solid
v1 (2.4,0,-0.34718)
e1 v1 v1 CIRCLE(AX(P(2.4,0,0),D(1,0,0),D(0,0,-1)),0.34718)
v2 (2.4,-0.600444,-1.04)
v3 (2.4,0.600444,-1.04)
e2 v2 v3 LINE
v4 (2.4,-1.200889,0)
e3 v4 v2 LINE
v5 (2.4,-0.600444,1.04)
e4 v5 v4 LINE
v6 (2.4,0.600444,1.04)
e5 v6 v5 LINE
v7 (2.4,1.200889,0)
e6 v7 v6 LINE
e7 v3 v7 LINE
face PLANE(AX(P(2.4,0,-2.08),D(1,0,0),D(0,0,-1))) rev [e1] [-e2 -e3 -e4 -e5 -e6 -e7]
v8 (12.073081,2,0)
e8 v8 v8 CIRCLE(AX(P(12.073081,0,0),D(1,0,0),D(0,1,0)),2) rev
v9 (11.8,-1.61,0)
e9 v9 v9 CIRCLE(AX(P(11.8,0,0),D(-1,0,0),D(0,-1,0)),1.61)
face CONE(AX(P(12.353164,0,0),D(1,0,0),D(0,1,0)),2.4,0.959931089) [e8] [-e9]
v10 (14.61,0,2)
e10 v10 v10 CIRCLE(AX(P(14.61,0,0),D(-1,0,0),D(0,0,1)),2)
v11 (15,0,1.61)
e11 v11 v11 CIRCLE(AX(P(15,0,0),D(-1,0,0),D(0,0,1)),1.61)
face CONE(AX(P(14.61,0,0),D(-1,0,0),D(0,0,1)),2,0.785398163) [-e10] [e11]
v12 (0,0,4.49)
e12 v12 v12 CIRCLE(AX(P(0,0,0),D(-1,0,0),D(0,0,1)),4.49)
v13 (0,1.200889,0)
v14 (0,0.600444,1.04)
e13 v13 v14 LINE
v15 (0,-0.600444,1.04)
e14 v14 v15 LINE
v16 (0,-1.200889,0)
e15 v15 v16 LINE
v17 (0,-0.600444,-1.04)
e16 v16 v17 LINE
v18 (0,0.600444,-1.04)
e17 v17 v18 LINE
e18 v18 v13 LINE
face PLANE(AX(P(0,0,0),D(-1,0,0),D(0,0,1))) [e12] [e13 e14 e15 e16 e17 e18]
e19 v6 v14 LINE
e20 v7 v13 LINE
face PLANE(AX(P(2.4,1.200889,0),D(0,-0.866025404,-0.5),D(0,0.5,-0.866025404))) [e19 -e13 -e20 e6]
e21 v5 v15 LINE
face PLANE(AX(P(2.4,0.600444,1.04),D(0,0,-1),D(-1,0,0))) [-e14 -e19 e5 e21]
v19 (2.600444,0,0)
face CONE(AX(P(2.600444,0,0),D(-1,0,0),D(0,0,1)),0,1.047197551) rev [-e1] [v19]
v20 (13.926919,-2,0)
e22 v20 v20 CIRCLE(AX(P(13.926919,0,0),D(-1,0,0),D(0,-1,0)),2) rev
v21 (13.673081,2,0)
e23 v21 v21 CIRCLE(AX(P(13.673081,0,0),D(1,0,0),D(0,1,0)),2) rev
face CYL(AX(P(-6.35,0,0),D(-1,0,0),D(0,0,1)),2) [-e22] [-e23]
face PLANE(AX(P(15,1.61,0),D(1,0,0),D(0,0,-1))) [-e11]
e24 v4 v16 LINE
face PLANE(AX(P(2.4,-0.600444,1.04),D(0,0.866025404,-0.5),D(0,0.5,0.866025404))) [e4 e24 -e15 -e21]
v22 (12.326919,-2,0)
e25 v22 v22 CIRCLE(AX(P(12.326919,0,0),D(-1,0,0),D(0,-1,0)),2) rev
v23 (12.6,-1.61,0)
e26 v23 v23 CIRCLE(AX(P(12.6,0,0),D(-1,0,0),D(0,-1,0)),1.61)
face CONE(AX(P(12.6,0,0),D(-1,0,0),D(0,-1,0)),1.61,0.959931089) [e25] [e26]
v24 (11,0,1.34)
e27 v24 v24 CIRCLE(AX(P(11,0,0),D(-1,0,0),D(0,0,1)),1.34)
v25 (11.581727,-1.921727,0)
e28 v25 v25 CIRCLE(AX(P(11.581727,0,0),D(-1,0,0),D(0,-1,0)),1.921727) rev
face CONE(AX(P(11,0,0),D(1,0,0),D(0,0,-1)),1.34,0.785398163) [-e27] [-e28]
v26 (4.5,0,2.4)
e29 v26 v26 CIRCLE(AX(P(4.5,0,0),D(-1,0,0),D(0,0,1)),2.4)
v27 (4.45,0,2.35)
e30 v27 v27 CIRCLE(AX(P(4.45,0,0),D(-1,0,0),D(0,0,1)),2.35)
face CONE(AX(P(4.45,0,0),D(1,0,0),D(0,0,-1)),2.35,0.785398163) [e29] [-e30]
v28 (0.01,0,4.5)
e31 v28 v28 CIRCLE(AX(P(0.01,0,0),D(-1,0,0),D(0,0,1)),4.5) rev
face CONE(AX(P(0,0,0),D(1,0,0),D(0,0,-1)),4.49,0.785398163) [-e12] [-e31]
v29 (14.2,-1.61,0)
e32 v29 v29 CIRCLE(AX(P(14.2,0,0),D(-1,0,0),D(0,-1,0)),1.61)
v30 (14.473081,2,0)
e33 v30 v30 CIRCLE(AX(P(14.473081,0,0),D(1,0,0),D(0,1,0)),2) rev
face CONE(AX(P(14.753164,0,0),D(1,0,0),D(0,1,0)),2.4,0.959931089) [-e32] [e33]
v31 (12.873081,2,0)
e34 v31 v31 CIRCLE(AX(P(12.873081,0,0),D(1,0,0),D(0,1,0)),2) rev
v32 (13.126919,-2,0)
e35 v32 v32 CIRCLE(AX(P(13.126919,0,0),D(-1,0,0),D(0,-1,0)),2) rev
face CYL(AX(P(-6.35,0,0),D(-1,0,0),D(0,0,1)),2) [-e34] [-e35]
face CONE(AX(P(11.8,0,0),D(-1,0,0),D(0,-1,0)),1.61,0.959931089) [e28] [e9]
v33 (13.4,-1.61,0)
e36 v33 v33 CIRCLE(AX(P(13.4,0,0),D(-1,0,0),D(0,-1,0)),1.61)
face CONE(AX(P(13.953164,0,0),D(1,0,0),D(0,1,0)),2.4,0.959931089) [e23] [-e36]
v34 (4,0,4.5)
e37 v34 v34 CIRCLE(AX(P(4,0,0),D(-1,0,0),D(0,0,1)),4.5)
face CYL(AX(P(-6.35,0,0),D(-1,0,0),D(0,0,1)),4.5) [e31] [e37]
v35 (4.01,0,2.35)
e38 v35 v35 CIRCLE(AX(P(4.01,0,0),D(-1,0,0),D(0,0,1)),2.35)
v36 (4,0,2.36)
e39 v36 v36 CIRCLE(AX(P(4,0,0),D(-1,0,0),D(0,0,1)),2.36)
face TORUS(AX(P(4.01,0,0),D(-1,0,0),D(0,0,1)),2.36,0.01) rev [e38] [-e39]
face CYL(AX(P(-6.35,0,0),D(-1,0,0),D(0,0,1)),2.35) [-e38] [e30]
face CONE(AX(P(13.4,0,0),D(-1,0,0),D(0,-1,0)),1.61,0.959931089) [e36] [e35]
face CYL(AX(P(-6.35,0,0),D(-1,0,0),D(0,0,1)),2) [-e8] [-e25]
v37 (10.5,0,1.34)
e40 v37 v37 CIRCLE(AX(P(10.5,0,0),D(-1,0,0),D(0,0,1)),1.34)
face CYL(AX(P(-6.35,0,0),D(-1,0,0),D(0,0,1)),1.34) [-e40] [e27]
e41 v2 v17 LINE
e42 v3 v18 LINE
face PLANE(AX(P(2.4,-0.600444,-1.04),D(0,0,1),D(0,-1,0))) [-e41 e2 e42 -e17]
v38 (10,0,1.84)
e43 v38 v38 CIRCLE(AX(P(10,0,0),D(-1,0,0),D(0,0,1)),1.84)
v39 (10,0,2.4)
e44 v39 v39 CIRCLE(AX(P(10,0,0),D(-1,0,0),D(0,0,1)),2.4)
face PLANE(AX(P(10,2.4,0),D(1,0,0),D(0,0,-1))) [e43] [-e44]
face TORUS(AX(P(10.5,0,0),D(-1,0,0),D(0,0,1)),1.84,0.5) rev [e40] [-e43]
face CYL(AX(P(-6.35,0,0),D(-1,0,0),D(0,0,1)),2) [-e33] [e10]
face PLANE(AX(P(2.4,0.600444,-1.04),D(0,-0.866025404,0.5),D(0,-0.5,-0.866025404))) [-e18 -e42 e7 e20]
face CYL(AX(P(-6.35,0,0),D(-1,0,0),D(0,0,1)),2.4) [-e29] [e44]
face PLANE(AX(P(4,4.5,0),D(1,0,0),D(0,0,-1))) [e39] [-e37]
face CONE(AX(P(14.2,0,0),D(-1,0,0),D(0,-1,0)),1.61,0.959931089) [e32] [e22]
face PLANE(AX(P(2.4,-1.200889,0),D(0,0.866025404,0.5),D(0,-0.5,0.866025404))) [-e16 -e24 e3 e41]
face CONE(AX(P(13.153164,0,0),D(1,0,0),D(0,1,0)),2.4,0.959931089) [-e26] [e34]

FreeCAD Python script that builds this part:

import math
import FreeCAD as App
import Part
import Sketcher
from FreeCAD import Vector
Q = App.Units.Quantity


def edges_at(feature, points):
    """Names of the edges that pass closest to the given points."""
    edges = feature.Shape.Edges
    near = lambda p: min(range(len(edges)), key=lambda i: edges[i].distToShape(Part.Vertex(*p))[0])
    return sorted({f"Edge{near(p) + 1}" for p in points})


def add_polygon(sketch, points):
    """Adds a closed chain of lines whose ends are joined by coincident constraints."""
    first, n = sketch.GeometryCount, len(points)
    for a, b in zip(points, points[1:] + points[:1]):
        sketch.addGeometry(Part.LineSegment(App.Vector(*a, 0), App.Vector(*b, 0)), False)
    for i in range(n):
        sketch.addConstraint(Sketcher.Constraint("Coincident", first + i, 2, first + (i + 1) % n, 1))

doc = App.newDocument("Part")
body = doc.addObject("PartDesign::Body", "Body")

# Sketch on XY plane
sketch1 = doc.addObject("Sketcher::SketchObject", "Sketch")
body.addObject(sketch1)
sketch1.AttachmentSupport = (doc.XY_Plane, [""])
sketch1.MapMode = "FlatFace"
sketch1.addGeometry([
    Part.LineSegment(Vector(0, 4.5, 0), Vector(0, 0, 0)),  # 0
    Part.LineSegment(Vector(0, 0, 0), Vector(15, 0, 0)),  # 1
    Part.LineSegment(Vector(15, 0, 0), Vector(15, 1.61, 0)),  # 2
    Part.LineSegment(Vector(15, 1.61, 0), Vector(14.61, 2, 0)),  # 3
    Part.LineSegment(Vector(14.61, 2, 0), Vector(11.66, 2, 0)),  # 4
    Part.LineSegment(Vector(11.66, 2, 0), Vector(11, 1.34, 0)),  # 5
    Part.LineSegment(Vector(11, 1.34, 0), Vector(10.5, 1.34, 0)),  # 6
    Part.ArcOfCircle(Part.Circle(Vector(10.5, 1.84, 0), Vector(0, 0, 1), 0.5), math.radians(180), math.radians(270)),  # 7
    Part.LineSegment(Vector(10, 1.84, 0), Vector(10, 2.4, 0)),  # 8
    Part.LineSegment(Vector(10, 2.4, 0), Vector(4.5, 2.4, 0)),  # 9
    Part.LineSegment(Vector(4.5, 2.4, 0), Vector(4.45, 2.35, 0)),  # 10
    Part.LineSegment(Vector(4.45, 2.35, 0), Vector(4.01, 2.35, 0)),  # 11
    Part.ArcOfCircle(Part.Circle(Vector(4.01, 2.36, 0), Vector(0, 0, 1), 0.01), math.radians(180), math.radians(270)),  # 12
    Part.LineSegment(Vector(4, 2.36, 0), Vector(4, 4.5, 0)),  # 13
    Part.LineSegment(Vector(4, 4.5, 0), Vector(0, 4.5, 0)),  # 14
], False)
sketch1.addConstraint([
    Sketcher.Constraint("Coincident", 0, 2, 1, 1),
    Sketcher.Constraint("Coincident", 1, 2, 2, 1),
    Sketcher.Constraint("Coincident", 2, 2, 3, 1),
    Sketcher.Constraint("Coincident", 3, 2, 4, 1),
    Sketcher.Constraint("Coincident", 4, 2, 5, 1),
    Sketcher.Constraint("Coincident", 5, 2, 6, 1),
    Sketcher.Constraint("Tangent", 6, 2, 7, 2),
    Sketcher.Constraint("Tangent", 7, 1, 8, 1),
    Sketcher.Constraint("Coincident", 8, 2, 9, 1),
    Sketcher.Constraint("Coincident", 9, 2, 10, 1),
    Sketcher.Constraint("Coincident", 10, 2, 11, 1),
    Sketcher.Constraint("Tangent", 11, 2, 12, 2),
    Sketcher.Constraint("Tangent", 12, 1, 13, 1),
    Sketcher.Constraint("Coincident", 13, 2, 14, 1),
    Sketcher.Constraint("Coincident", 14, 2, 0, 1),
    Sketcher.Constraint("Vertical", 0),
    Sketcher.Constraint("Horizontal", 1),
    Sketcher.Constraint("Vertical", 2),
    Sketcher.Constraint("Horizontal", 4),
    Sketcher.Constraint("Horizontal", 6),
    Sketcher.Constraint("Vertical", 8),
    Sketcher.Constraint("Horizontal", 9),
    Sketcher.Constraint("Horizontal", 11),
    Sketcher.Constraint("Vertical", 13),
    Sketcher.Constraint("Horizontal", 14),
    Sketcher.Constraint("Coincident", 0, 2, -1, 1),
    Sketcher.Constraint("Perpendicular", 3, 5),
    Sketcher.Constraint("Parallel", 5, 10),
    Sketcher.Constraint("Radius", 7, Q("0.5 mm")),
    Sketcher.Constraint("DistanceX", 1, 1, 1, 2, Q("15 mm")),
    Sketcher.Constraint("DistanceX", 14, 2, 14, 1, Q("4 mm")),
    Sketcher.Constraint("Angle", 3, Q("135 deg")),
    Sketcher.Constraint("Radius", 12, Q("0.01 mm")),
    Sketcher.Constraint("DistanceX", 6, 2, 6, 1, Q("0.5 mm")),
    Sketcher.Constraint("DistanceX", 9, 2, 9, 1, Q("5.5 mm")),
    Sketcher.Constraint("DistanceY", 0, 2, 0, 1, Q("4.5 mm")),
    Sketcher.Constraint("DistanceY", -1, 1, 3, 2, Q("2 mm")),
    Sketcher.Constraint("DistanceX", -1, 1, 5, 2, Q("11 mm")),
    Sketcher.Constraint("DistanceX", 4, 2, 4, 1, Q("2.95 mm")),
    Sketcher.Constraint("DistanceX", 11, 2, 11, 1, Q("0.44 mm")),
    Sketcher.Constraint("DistanceY", 2, 1, 2, 2, Q("1.61 mm")),
    Sketcher.Constraint("DistanceY", 8, 1, 8, 2, Q("0.56 mm")),
])
revolution = doc.addObject("PartDesign::Revolution", "Revolution")
body.addObject(revolution)
revolution.Profile = sketch1
revolution.ReferenceAxis = (sketch1, ["H_Axis"])
revolution.Angle = 360
doc.recompute()

chamfer = doc.addObject("PartDesign::Chamfer", "Chamfer")
body.addObject(chamfer)
chamfer.Base = (revolution, edges_at(revolution, [(0, 0, -4.5)]))
chamfer.Size = 0.01

# Sketch on XY plane
sketch2 = doc.addObject("Sketcher::SketchObject", "Sketch001")
body.addObject(sketch2)
sketch2.AttachmentSupport = (doc.XY_Plane, [""])
sketch2.MapMode = "FlatFace"
add_polygon(sketch2, [(2, 1), (0, 1), (0, 0), (2.6, 0)])  # lines 0-3
sketch2.addConstraint([
    Sketcher.Constraint("Horizontal", 0),
    Sketcher.Constraint("Vertical", 1),
    Sketcher.Constraint("Horizontal", 2),
    Sketcher.Constraint("Coincident", 1, 2, -1, 1),
    Sketcher.Constraint("DistanceX", 0, 2, 0, 1, Q("2 mm")),
    Sketcher.Constraint("Angle", 3, Q("120 deg")),
    Sketcher.Constraint("DistanceY", 1, 2, 1, 1, Q("1.04 mm")),
])
groove = doc.addObject("PartDesign::Groove", "Groove")
body.addObject(groove)
groove.Profile = sketch2
groove.ReferenceAxis = (sketch2, ["H_Axis"])
groove.Angle = 360

# Sketch on YZ plane
sketch3 = doc.addObject("Sketcher::SketchObject", "Sketch002")
body.addObject(sketch3)
sketch3.AttachmentSupport = (doc.YZ_Plane, [""])
sketch3.MapMode = "FlatFace"
add_polygon(sketch3, [(0.6, -1), (-0.6, -1), (-1.2, 0), (-0.6, 1), (0.6, 1), (1.2, 0)])  # lines 0-5
sketch3.addConstraint([
    Sketcher.Constraint("Horizontal", 0),
    Sketcher.Constraint("Horizontal", 3),
    Sketcher.Constraint("Symmetric", 0, 2, 3, 2, -1, 1),
    Sketcher.Constraint("Symmetric", 1, 2, 4, 2, -1, 1),
    Sketcher.Constraint("PointOnObject", 1, 2, -1),
    Sketcher.Constraint("Parallel", 2, 5),
    Sketcher.Constraint("Vertical", 0, 2, 2, 2),
    Sketcher.Constraint("Angle", 1, Q("120 deg")),
    Sketcher.Constraint("DistanceY", 0, 2, -1, 1, Q("1.04 mm")),
    Sketcher.Constraint("DistanceX", 0, 2, 0, 1, Q("1.200889 mm")),
])
pocket1 = doc.addObject("PartDesign::Pocket", "Pocket")
body.addObject(pocket1)
pocket1.Profile = sketch3
pocket1.Length = 2.4
pocket1.Reversed = True

# Sketch on XY plane
sketch4 = doc.addObject("Sketcher::SketchObject", "Sketch003")
body.addObject(sketch4)
sketch4.AttachmentSupport = (doc.XY_Plane, [""])
sketch4.MapMode = "FlatFace"
add_polygon(sketch4, [(11.8, -1.6), (11.2, -2.4), (11.2, -3), (12.4, -3), (12.4, -2.4)])  # lines 0-4
sketch4.addConstraint([
    Sketcher.Constraint("Vertical", 1),
    Sketcher.Constraint("Horizontal", 2),
    Sketcher.Constraint("Vertical", 3),
    Sketcher.Constraint("Horizontal", 0, 2, 3, 2),
    Sketcher.Constraint("Equal", 0, 4),
    Sketcher.Constraint("Angle", 0, Q("-125 deg")),
    Sketcher.Constraint("DistanceY", 1, 2, 1, 1, Q("0.6 mm")),
    Sketcher.Constraint("DistanceY", 1, 2, -1, 1, Q("3 mm")),
    Sketcher.Constraint("DistanceX", -1, 1, 4, 2, Q("11.8 mm")),
    Sketcher.Constraint("DistanceY", 4, 2, -1, 1, Q("1.61 mm")),
])
groove2 = doc.addObject("PartDesign::Groove", "Groove001")
body.addObject(groove2)
groove2.Profile = sketch4
groove2.ReferenceAxis = (sketch4, ["H_Axis"])
groove2.Angle = 360
doc.recompute()

linearpattern = doc.addObject("PartDesign::LinearPattern", "LinearPattern")
body.addObject(linearpattern)
linearpattern.Originals = [groove2]
linearpattern.Direction = (doc.X_Axis, [""])
linearpattern.Mode = "offset"
linearpattern.Offset = 0.8
linearpattern.Occurrences = 4
body.Tip = linearpattern

doc.recompute()
